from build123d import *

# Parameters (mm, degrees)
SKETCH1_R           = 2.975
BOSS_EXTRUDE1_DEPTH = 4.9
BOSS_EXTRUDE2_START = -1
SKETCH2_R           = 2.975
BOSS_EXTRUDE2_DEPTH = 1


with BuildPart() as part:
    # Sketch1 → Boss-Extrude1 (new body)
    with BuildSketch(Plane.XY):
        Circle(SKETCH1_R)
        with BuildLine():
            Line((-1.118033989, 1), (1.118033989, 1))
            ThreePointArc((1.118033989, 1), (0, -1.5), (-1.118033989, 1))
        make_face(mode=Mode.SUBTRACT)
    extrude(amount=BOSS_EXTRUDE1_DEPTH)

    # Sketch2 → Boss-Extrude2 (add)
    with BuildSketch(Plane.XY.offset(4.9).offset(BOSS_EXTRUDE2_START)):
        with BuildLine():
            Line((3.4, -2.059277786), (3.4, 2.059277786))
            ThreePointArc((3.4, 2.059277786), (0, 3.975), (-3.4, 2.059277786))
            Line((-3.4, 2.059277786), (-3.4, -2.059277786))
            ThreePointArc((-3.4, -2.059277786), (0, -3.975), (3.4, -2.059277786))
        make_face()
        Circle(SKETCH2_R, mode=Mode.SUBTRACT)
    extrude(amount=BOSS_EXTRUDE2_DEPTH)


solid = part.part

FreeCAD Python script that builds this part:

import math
import FreeCAD as App
import Part
import Sketcher

V = App.Vector

doc = App.newDocument("Part")
body = doc.addObject("PartDesign::Body", "Body")

# Sketch on XY plane
sketch1 = body.newObject("Sketcher::SketchObject", "Sketch")
sketch1.AttachmentSupport = (doc.getObject("XY_Plane"), [""])
sketch1.MapMode = "FlatFace"
sketch1.addGeometry([
    Part.Circle(V(0, 0, 0), V(0, 0, 1), 2.975),
    Part.ArcOfCircle(Part.Circle(V(0, 0, 0), V(0, 0, 1), 1.5), math.radians(138.189685), math.radians(401.810315)),
    Part.LineSegment(V(-1.118034, 1, 0), V(1.118034, 1, 0)),
], False)
sketch1.addConstraint([
    Sketcher.Constraint("Coincident", 1, 1, 2, 1),
    Sketcher.Constraint("Coincident", 2, 2, 1, 2),
    Sketcher.Constraint("Horizontal", 2),
    Sketcher.Constraint("Coincident", 0, 3, -1, 1),
    Sketcher.Constraint("Coincident", 1, 3, -1, 1),
    Sketcher.Constraint("Radius", 1, 1.5),
    Sketcher.Constraint("Diameter", 0, 5.95),
    Sketcher.Constraint("DistanceY", -1, 1, 1, 1, 1.0),
])
pad1 = body.newObject("PartDesign::Pad", "Pad")
pad1.Profile = sketch1
pad1.Length = 4.9

# Sketch on XY plane
sketch2 = body.newObject("Sketcher::SketchObject", "Sketch001")
sketch2.AttachmentSupport = (doc.getObject("XY_Plane"), [""])
sketch2.MapMode = "FlatFace"
sketch2.AttachmentOffset = App.Placement(V(0, 0, 3.9), App.Rotation())
sketch2.addGeometry([
    Part.LineSegment(V(3.4, -2.059278, 0), V(3.4, 2.059278, 0)),  # 0
    Part.ArcOfCircle(Part.Circle(V(0, 0, 0), V(0, 0, 1), 3.975), math.radians(31.202029), math.radians(148.797971)),  # 1
    Part.LineSegment(V(-3.4, 2.059278, 0), V(-3.4, -2.059278, 0)),  # 2
    Part.ArcOfCircle(Part.Circle(V(0, 0, 0), V(0, 0, 1), 3.975), math.radians(-148.797971), math.radians(-31.202029)),  # 3
    Part.Circle(V(0, 0, 0), V(0, 0, 1), 2.975),  # 4
], False)
sketch2.addConstraint([
    Sketcher.Constraint("Coincident", 0, 2, 1, 1),
    Sketcher.Constraint("Coincident", 1, 2, 2, 1),
    Sketcher.Constraint("Coincident", 2, 2, 3, 1),
    Sketcher.Constraint("Coincident", 3, 2, 0, 1),
    Sketcher.Constraint("Vertical", 0),
    Sketcher.Constraint("Vertical", 2),
    Sketcher.Constraint("Coincident", 1, 3, -1, 1),
    Sketcher.Constraint("Coincident", 3, 3, -1, 1),
    Sketcher.Constraint("Coincident", 4, 3, -1, 1),
    Sketcher.Constraint("Equal", 1, 3),
    Sketcher.Constraint("Horizontal", 0, 2, 1, 2),
    Sketcher.Constraint("Diameter", 4, 5.95),
    Sketcher.Constraint("Radius", 1, 3.975),
    Sketcher.Constraint("DistanceX", -1, 1, 0, 2, 3.4),
])
pad2 = body.newObject("PartDesign::Pad", "Pad001")
pad2.Profile = sketch2
pad2.Length = 1

doc.recompute()
